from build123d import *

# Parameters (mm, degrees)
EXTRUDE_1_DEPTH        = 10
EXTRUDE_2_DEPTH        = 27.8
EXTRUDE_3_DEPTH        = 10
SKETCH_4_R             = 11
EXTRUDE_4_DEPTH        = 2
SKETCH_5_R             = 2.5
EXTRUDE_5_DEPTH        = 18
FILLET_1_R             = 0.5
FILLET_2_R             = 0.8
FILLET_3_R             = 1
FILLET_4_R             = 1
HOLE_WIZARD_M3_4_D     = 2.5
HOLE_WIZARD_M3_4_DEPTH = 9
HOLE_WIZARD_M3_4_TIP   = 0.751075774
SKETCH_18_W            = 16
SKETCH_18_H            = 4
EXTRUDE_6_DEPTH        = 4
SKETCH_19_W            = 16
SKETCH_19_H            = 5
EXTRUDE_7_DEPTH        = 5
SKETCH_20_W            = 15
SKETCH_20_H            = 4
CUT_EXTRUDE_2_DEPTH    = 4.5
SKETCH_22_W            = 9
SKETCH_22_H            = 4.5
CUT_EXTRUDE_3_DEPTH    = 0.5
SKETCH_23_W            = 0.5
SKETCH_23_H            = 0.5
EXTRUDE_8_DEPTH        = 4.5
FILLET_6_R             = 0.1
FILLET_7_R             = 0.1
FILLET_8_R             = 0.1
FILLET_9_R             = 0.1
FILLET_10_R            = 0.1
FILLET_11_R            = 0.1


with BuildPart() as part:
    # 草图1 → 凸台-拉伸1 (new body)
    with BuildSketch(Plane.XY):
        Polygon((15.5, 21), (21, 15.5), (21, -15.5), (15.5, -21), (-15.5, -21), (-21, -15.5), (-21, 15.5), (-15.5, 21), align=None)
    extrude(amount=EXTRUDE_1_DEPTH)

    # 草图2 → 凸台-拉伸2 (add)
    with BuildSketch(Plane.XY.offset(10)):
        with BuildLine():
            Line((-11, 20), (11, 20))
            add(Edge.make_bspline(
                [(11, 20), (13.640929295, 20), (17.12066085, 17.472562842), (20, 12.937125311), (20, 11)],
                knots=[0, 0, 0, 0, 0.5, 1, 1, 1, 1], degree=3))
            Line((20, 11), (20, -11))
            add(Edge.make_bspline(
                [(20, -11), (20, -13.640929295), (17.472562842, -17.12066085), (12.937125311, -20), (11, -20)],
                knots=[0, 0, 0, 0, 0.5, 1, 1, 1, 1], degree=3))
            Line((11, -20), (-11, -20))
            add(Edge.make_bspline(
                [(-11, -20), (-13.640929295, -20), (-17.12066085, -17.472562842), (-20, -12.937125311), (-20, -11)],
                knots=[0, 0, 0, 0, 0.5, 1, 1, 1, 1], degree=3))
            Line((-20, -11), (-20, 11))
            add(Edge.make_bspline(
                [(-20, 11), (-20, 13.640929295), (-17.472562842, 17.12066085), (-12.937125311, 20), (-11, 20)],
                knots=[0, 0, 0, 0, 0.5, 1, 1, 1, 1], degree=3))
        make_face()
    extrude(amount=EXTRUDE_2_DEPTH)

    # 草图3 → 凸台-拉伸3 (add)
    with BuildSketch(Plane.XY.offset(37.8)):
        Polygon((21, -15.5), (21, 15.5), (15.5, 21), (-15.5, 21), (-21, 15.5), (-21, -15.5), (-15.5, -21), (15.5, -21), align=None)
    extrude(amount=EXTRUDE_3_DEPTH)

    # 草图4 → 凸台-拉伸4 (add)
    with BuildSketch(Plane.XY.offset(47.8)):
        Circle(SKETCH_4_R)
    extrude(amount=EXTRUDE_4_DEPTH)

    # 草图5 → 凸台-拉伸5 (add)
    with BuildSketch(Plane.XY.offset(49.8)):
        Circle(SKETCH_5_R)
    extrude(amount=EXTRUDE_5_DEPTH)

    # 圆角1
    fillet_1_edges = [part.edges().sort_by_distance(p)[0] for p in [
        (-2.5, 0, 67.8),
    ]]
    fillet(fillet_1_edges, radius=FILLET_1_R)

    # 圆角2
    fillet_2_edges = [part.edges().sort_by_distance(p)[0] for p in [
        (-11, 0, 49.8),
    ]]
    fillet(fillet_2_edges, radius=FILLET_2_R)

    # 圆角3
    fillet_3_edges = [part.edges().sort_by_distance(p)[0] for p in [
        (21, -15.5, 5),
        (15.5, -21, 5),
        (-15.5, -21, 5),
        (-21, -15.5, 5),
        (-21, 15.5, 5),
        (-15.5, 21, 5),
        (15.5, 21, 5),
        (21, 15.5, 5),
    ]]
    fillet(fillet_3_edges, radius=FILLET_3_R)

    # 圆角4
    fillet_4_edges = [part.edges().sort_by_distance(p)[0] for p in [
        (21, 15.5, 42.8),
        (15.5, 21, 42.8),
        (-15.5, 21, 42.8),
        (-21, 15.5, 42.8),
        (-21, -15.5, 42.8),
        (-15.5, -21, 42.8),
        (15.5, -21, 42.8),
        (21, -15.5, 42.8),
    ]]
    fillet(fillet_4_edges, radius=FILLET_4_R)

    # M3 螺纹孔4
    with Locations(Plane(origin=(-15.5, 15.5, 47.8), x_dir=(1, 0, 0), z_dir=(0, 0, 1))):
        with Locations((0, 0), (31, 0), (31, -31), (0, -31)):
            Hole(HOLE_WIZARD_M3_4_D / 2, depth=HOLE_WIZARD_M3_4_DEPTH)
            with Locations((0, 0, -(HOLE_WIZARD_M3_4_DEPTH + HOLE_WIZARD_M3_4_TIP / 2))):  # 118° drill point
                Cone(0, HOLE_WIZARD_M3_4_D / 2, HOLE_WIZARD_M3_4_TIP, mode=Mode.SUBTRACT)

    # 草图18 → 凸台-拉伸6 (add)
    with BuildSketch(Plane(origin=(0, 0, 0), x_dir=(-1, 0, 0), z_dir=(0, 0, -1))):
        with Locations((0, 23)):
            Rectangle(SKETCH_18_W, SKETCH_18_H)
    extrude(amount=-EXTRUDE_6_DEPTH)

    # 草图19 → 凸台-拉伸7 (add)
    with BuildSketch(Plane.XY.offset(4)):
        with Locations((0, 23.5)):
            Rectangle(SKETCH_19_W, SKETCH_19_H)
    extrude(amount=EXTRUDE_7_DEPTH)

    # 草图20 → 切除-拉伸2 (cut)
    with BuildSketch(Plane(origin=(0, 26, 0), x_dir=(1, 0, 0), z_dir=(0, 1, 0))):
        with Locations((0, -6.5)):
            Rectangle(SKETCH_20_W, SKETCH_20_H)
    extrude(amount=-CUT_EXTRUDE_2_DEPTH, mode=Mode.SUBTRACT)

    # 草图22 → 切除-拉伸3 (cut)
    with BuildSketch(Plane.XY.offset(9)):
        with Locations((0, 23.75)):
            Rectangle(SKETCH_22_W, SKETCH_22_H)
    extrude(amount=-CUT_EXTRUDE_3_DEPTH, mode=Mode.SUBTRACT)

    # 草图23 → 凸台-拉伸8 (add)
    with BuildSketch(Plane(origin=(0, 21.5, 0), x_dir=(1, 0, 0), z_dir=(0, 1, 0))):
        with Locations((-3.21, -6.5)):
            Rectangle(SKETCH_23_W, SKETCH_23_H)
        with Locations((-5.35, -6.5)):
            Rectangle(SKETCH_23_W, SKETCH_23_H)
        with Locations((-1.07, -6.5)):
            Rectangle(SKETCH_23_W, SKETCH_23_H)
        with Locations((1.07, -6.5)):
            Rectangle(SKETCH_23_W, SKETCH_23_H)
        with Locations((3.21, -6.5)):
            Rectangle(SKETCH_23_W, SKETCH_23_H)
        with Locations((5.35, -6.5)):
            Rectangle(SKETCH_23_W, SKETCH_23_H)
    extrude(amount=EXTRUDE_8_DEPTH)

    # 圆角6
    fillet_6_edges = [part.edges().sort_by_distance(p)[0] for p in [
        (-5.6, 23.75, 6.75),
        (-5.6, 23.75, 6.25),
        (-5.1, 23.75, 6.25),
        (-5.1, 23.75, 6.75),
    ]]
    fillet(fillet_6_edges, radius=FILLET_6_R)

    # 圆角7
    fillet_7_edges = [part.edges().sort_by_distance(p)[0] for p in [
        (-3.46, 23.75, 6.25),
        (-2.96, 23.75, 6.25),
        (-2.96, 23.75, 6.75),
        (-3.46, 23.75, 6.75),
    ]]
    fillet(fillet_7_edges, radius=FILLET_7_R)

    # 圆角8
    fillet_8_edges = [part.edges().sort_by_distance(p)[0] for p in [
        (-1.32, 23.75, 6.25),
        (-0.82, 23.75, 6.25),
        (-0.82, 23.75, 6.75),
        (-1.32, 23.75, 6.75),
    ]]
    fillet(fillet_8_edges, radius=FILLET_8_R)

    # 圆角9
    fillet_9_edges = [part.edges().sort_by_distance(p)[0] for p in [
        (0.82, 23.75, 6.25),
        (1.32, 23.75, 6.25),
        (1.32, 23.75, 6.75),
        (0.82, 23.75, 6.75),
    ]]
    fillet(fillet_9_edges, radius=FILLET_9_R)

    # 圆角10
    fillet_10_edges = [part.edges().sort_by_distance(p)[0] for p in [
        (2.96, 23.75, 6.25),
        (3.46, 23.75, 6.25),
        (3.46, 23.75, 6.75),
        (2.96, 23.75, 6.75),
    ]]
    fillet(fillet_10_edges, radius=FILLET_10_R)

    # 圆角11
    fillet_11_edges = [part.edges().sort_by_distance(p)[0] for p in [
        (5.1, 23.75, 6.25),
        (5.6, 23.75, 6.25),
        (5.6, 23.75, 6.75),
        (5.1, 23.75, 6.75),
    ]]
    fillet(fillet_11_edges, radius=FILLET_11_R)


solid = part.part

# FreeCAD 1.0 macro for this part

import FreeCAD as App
import Part
import Sketcher

V = App.Vector


def edges_at(feature, points):
    """Names of the edges that pass closest to the given points."""
    edges = feature.Shape.Edges
    near = lambda p: min(range(len(edges)), key=lambda i: edges[i].distToShape(Part.Vertex(*p))[0])
    return sorted({f"Edge{near(p) + 1}" for p in points})

doc = App.newDocument("Part")
body = doc.addObject("PartDesign::Body", "Body")

# Sketch on XY plane
sketch1 = body.newObject("Sketcher::SketchObject", "Sketch")
sketch1.AttachmentSupport = (doc.getObject("XY_Plane"), [""])
sketch1.MapMode = "FlatFace"
sketch1.addGeometry([
    Part.LineSegment(V(21, 15.5, 0), V(15.5, 21, 0)),  # 0
    Part.LineSegment(V(15.5, 21, 0), V(-15.5, 21, 0)),  # 1
    Part.LineSegment(V(-15.5, 21, 0), V(-21, 15.5, 0)),  # 2
    Part.LineSegment(V(-21, 15.5, 0), V(-21, -15.5, 0)),  # 3
    Part.LineSegment(V(-21, -15.5, 0), V(-15.5, -21, 0)),  # 4
    Part.LineSegment(V(-15.5, -21, 0), V(15.5, -21, 0)),  # 5
    Part.LineSegment(V(15.5, -21, 0), V(21, -15.5, 0)),  # 6
    Part.LineSegment(V(21, -15.5, 0), V(21, 15.5, 0)),  # 7
], False)
sketch1.addConstraint([
    Sketcher.Constraint("Coincident", 0, 2, 1, 1),
    Sketcher.Constraint("Coincident", 1, 2, 2, 1),
    Sketcher.Constraint("Coincident", 2, 2, 3, 1),
    Sketcher.Constraint("Coincident", 3, 2, 4, 1),
    Sketcher.Constraint("Coincident", 4, 2, 5, 1),
    Sketcher.Constraint("Coincident", 5, 2, 6, 1),
    Sketcher.Constraint("Coincident", 6, 2, 7, 1),
    Sketcher.Constraint("Coincident", 7, 2, 0, 1),
    Sketcher.Constraint("Horizontal", 1),
    Sketcher.Constraint("Vertical", 3),
    Sketcher.Constraint("Horizontal", 5),
    Sketcher.Constraint("Vertical", 7),
    Sketcher.Constraint("Symmetric", 0, 2, 4, 2, -1, 1),
    Sketcher.Constraint("Symmetric", 2, 2, 6, 2, -1, 1),
    Sketcher.Constraint("Perpendicular", 0, 2),
    Sketcher.Constraint("Perpendicular", 2, 4),
    Sketcher.Constraint("Perpendicular", 4, 6),
    Sketcher.Constraint("Horizontal", 3, 2, 6, 2),
    Sketcher.Constraint("Vertical", 1, 2, 4, 2),
    Sketcher.Constraint("Equal", 5, 3),
    Sketcher.Constraint("DistanceX", 1, 2, 1, 1, 31.0),
    Sketcher.Constraint("DistanceY", -1, 1, 0, 2, 21.0),
])
pad1 = body.newObject("PartDesign::Pad", "Pad")
pad1.Profile = sketch1
pad1.Length = 10

# Sketch on XY plane
sketch2 = body.newObject("Sketcher::SketchObject", "Sketch001")
sketch2.AttachmentSupport = (doc.getObject("XY_Plane"), [""])
sketch2.MapMode = "FlatFace"
sketch2.AttachmentOffset = App.Placement(V(0, 0, 10), App.Rotation())
sketch2.addGeometry([
    Part.LineSegment(V(11, 20, 0), V(-11, 20, 0)),  # 0
    Part.BSplineCurve([V(-20, 11, 0), V(-20, 13.640929, 0), V(-17.472563, 17.120661, 0), V(-12.937125, 20, 0), V(-11, 20, 0)], [4, 1, 4], [0, 0.5, 1], False, 3, [1, 1, 1, 1, 1], False),  # 1
    Part.LineSegment(V(-20, 11, 0), V(-20, -11, 0)),  # 2
    Part.BSplineCurve([V(-11, -20, 0), V(-13.640929, -20, 0), V(-17.120661, -17.472563, 0), V(-20, -12.937125, 0), V(-20, -11, 0)], [4, 1, 4], [0, 0.5, 1], False, 3, [1, 1, 1, 1, 1], False),  # 3
    Part.LineSegment(V(-11, -20, 0), V(11, -20, 0)),  # 4
    Part.BSplineCurve([V(20, -11, 0), V(20, -13.640929, 0), V(17.472563, -17.120661, 0), V(12.937125, -20, 0), V(11, -20, 0)], [4, 1, 4], [0, 0.5, 1], False, 3, [1, 1, 1, 1, 1], False),  # 5
    Part.LineSegment(V(20, -11, 0), V(20, 11, 0)),  # 6
    Part.BSplineCurve([V(11, 20, 0), V(13.640929, 20, 0), V(17.120661, 17.472563, 0), V(20, 12.937125, 0), V(20, 11, 0)], [4, 1, 4], [0, 0.5, 1], False, 3, [1, 1, 1, 1, 1], False),  # 7
], False)
sketch2.addConstraint([
    Sketcher.Constraint("Block", 1),
    Sketcher.Constraint("Block", 3),
    Sketcher.Constraint("Block", 5),
    Sketcher.Constraint("Block", 7),
    Sketcher.Constraint("Coincident", 0, 2, 1, 2),
    Sketcher.Constraint("Coincident", 1, 1, 2, 1),
    Sketcher.Constraint("Coincident", 2, 2, 3, 2),
    Sketcher.Constraint("Coincident", 3, 1, 4, 1),
    Sketcher.Constraint("Coincident", 4, 2, 5, 2),
    Sketcher.Constraint("Coincident", 5, 1, 6, 1),
    Sketcher.Constraint("Coincident", 6, 2, 7, 2),
    Sketcher.Constraint("Coincident", 7, 1, 0, 1),
])
pad2 = body.newObject("PartDesign::Pad", "Pad001")
pad2.Profile = sketch2
pad2.Length = 27.8

# Sketch on XY plane
sketch3 = body.newObject("Sketcher::SketchObject", "Sketch002")
sketch3.AttachmentSupport = (doc.getObject("XY_Plane"), [""])
sketch3.MapMode = "FlatFace"
sketch3.AttachmentOffset = App.Placement(V(0, 0, 37.8), App.Rotation())
sketch3.addGeometry([
    Part.LineSegment(V(21, -15.5, 0), V(21, 15.5, 0)),  # 0
    Part.LineSegment(V(21, 15.5, 0), V(15.5, 21, 0)),  # 1
    Part.LineSegment(V(15.5, 21, 0), V(-15.5, 21, 0)),  # 2
    Part.LineSegment(V(-15.5, 21, 0), V(-21, 15.5, 0)),  # 3
    Part.LineSegment(V(-21, 15.5, 0), V(-21, -15.5, 0)),  # 4
    Part.LineSegment(V(-21, -15.5, 0), V(-15.5, -21, 0)),  # 5
    Part.LineSegment(V(-15.5, -21, 0), V(15.5, -21, 0)),  # 6
    Part.LineSegment(V(15.5, -21, 0), V(21, -15.5, 0)),  # 7
], False)
sketch3.addConstraint([
    Sketcher.Constraint("Coincident", 0, 2, 1, 1),
    Sketcher.Constraint("Coincident", 1, 2, 2, 1),
    Sketcher.Constraint("Coincident", 2, 2, 3, 1),
    Sketcher.Constraint("Coincident", 3, 2, 4, 1),
    Sketcher.Constraint("Coincident", 4, 2, 5, 1),
    Sketcher.Constraint("Coincident", 5, 2, 6, 1),
    Sketcher.Constraint("Coincident", 6, 2, 7, 1),
    Sketcher.Constraint("Coincident", 7, 2, 0, 1),
    Sketcher.Constraint("Vertical", 0),
    Sketcher.Constraint("Horizontal", 2),
    Sketcher.Constraint("Vertical", 4),
    Sketcher.Constraint("Horizontal", 6),
    Sketcher.Constraint("Symmetric", 0, 2, 4, 2, -1, 1),
    Sketcher.Constraint("Symmetric", 1, 2, 5, 2, -1, 1),
    Sketcher.Constraint("Perpendicular", 1, 3),
    Sketcher.Constraint("Perpendicular", 5, 7),
    Sketcher.Constraint("Horizontal", 0, 2, 3, 2),
    Sketcher.Constraint("Horizontal", 4, 2, 7, 2),
    Sketcher.Constraint("Vertical", 2, 2, 5, 2),
    Sketcher.Constraint("Equal", 6, 0),
    Sketcher.Constraint("DistanceX", 2, 2, 2, 1, 31.0),
    Sketcher.Constraint("DistanceX", -1, 1, 0, 2, 21.0),
])
pad3 = body.newObject("PartDesign::Pad", "Pad002")
pad3.Profile = sketch3
pad3.Length = 10

# Sketch on XY plane
sketch4 = body.newObject("Sketcher::SketchObject", "Sketch003")
sketch4.AttachmentSupport = (doc.getObject("XY_Plane"), [""])
sketch4.MapMode = "FlatFace"
sketch4.AttachmentOffset = App.Placement(V(0, 0, 47.8), App.Rotation())
sketch4.addGeometry(Part.Circle(V(0, 0, 0), V(0, 0, 1), 11), False)
sketch4.addConstraint([
    Sketcher.Constraint("Coincident", 0, 3, -1, 1),
    Sketcher.Constraint("Diameter", 0, 22.0),
])
pad4 = body.newObject("PartDesign::Pad", "Pad003")
pad4.Profile = sketch4
pad4.Length = 2

# Sketch on XY plane
sketch5 = body.newObject("Sketcher::SketchObject", "Sketch004")
sketch5.AttachmentSupport = (doc.getObject("XY_Plane"), [""])
sketch5.MapMode = "FlatFace"
sketch5.AttachmentOffset = App.Placement(V(0, 0, 49.8), App.Rotation())
sketch5.addGeometry(Part.Circle(V(0, 0, 0), V(0, 0, 1), 2.5), False)
sketch5.addConstraint([
    Sketcher.Constraint("Coincident", 0, 3, -1, 1),
    Sketcher.Constraint("Diameter", 0, 5.0),
])
pad5 = body.newObject("PartDesign::Pad", "Pad004")
pad5.Profile = sketch5
pad5.Length = 18
doc.recompute()

fillet = body.newObject("PartDesign::Fillet", "Fillet")
fillet.Base = (pad5, edges_at(pad5, [(-2.5, 0, 67.8)]))
fillet.Radius = 0.5
doc.recompute()

fillet2 = body.newObject("PartDesign::Fillet", "Fillet001")
fillet2.Base = (fillet, edges_at(fillet, [(-11, 0, 49.8)]))
fillet2.Radius = 0.8
doc.recompute()

fillet3 = body.newObject("PartDesign::Fillet", "Fillet002")
fillet3.Base = (fillet2, edges_at(fillet2, [
    (21, -15.5, 5),
    (15.5, -21, 5),
    (-15.5, -21, 5),
    (-21, -15.5, 5),
    (-21, 15.5, 5),
    (-15.5, 21, 5),
    (15.5, 21, 5),
    (21, 15.5, 5),
]))
fillet3.Radius = 1
doc.recompute()

fillet4 = body.newObject("PartDesign::Fillet", "Fillet003")
fillet4.Base = (fillet3, edges_at(fillet3, [
    (21, 15.5, 42.8),
    (15.5, 21, 42.8),
    (-15.5, 21, 42.8),
    (-21, 15.5, 42.8),
    (-21, -15.5, 42.8),
    (-15.5, -21, 42.8),
    (15.5, -21, 42.8),
    (21, -15.5, 42.8),
]))
fillet4.Radius = 1

# Sketch on XY plane
sketch6 = body.newObject("Sketcher::SketchObject", "Sketch005")
sketch6.AttachmentSupport = (doc.getObject("XY_Plane"), [""])
sketch6.MapMode = "FlatFace"
sketch6.AttachmentOffset = App.Placement(V(0, 0, 47.8), App.Rotation())
sketch6.addGeometry([
    Part.Circle(V(-15.5, 15.5, 0), V(0, 0, 1), 1.25),
    Part.Circle(V(15.5, 15.5, 0), V(0, 0, 1), 1.25),
    Part.Circle(V(15.5, -15.5, 0), V(0, 0, 1), 1.25),
    Part.Circle(V(-15.5, -15.5, 0), V(0, 0, 1), 1.25),
], False)
sketch6.addConstraint([
    Sketcher.Constraint("Equal", 0, 1),
    Sketcher.Constraint("Equal", 1, 2),
    Sketcher.Constraint("Equal", 2, 3),
    Sketcher.Constraint("Symmetric", 0, 3, 2, 3, -1, 1),
    Sketcher.Constraint("Symmetric", 1, 3, 3, 3, -1, 1),
    Sketcher.Constraint("Symmetric", 0, 3, 1, 3, -2),
    Sketcher.Constraint("Diameter", 0, 2.5),
    Sketcher.Constraint("DistanceX", 0, 3, 1, 3, 31.0),
    Sketcher.Constraint("DistanceY", 2, 3, 1, 3, 31.0),
])
doc.recompute()
hole = body.newObject("PartDesign::Hole", "Hole")
hole.Profile = sketch6
hole.ThreadType = "None"
hole.Diameter = 2.5
hole.DepthType = "Dimension"
hole.Depth = 9
hole.DrillPoint = "Angled"
hole.DrillPointAngle = 118

# Sketch on XY plane
sketch7 = body.newObject("Sketcher::SketchObject", "Sketch006")
sketch7.AttachmentSupport = (doc.getObject("XY_Plane"), [""])
sketch7.MapMode = "FlatFace"
sketch7.addGeometry([
    Part.LineSegment(V(8, 25, 0), V(8, 21, 0)),
    Part.LineSegment(V(8, 21, 0), V(-8, 21, 0)),
    Part.LineSegment(V(-8, 21, 0), V(-8, 25, 0)),
    Part.LineSegment(V(-8, 25, 0), V(8, 25, 0)),
], False)
sketch7.addConstraint([
    Sketcher.Constraint("Coincident", 0, 2, 1, 1),
    Sketcher.Constraint("Coincident", 1, 2, 2, 1),
    Sketcher.Constraint("Coincident", 2, 2, 3, 1),
    Sketcher.Constraint("Coincident", 3, 2, 0, 1),
    Sketcher.Constraint("Vertical", 0),
    Sketcher.Constraint("Horizontal", 1),
    Sketcher.Constraint("Vertical", 2),
    Sketcher.Constraint("Horizontal", 3),
    Sketcher.Constraint("DistanceX", 1, 2, 1, 1, 16.0),
    Sketcher.Constraint("DistanceY", 0, 2, 0, 1, 4.0),
    Sketcher.Constraint("DistanceX", -1, 1, 0, 2, 8.0),
    Sketcher.Constraint("DistanceY", -1, 1, 0, 2, 21.0),
])
pad6 = body.newObject("PartDesign::Pad", "Pad005")
pad6.Profile = sketch7
pad6.Length = 4

# Sketch on XY plane
sketch8 = body.newObject("Sketcher::SketchObject", "Sketch007")
sketch8.AttachmentSupport = (doc.getObject("XY_Plane"), [""])
sketch8.MapMode = "FlatFace"
sketch8.AttachmentOffset = App.Placement(V(0, 0, 4), App.Rotation())
sketch8.addGeometry([
    Part.LineSegment(V(-8, 26, 0), V(-8, 21, 0)),
    Part.LineSegment(V(-8, 21, 0), V(8, 21, 0)),
    Part.LineSegment(V(8, 21, 0), V(8, 26, 0)),
    Part.LineSegment(V(8, 26, 0), V(-8, 26, 0)),
], False)
sketch8.addConstraint([
    Sketcher.Constraint("Coincident", 0, 2, 1, 1),
    Sketcher.Constraint("Coincident", 1, 2, 2, 1),
    Sketcher.Constraint("Coincident", 2, 2, 3, 1),
    Sketcher.Constraint("Coincident", 3, 2, 0, 1),
    Sketcher.Constraint("Vertical", 0),
    Sketcher.Constraint("Horizontal", 1),
    Sketcher.Constraint("Vertical", 2),
    Sketcher.Constraint("Horizontal", 3),
    Sketcher.Constraint("DistanceX", 1, 1, 1, 2, 16.0),
    Sketcher.Constraint("DistanceY", 0, 2, 0, 1, 5.0),
    Sketcher.Constraint("DistanceX", 0, 2, -1, 1, 8.0),
    Sketcher.Constraint("DistanceY", -1, 1, 0, 2, 21.0),
])
pad7 = body.newObject("PartDesign::Pad", "Pad006")
pad7.Profile = sketch8
pad7.Length = 5

# Sketch on XZ plane
sketch9 = body.newObject("Sketcher::SketchObject", "Sketch008")
sketch9.AttachmentSupport = (doc.getObject("XZ_Plane"), [""])
sketch9.MapMode = "FlatFace"
sketch9.AttachmentOffset = App.Placement(V(0, 0, -26), App.Rotation())
sketch9.addGeometry([
    Part.LineSegment(V(-7.5, 4.5, 0), V(-7.5, 8.5, 0)),
    Part.LineSegment(V(-7.5, 8.5, 0), V(7.5, 8.5, 0)),
    Part.LineSegment(V(7.5, 8.5, 0), V(7.5, 4.5, 0)),
    Part.LineSegment(V(7.5, 4.5, 0), V(-7.5, 4.5, 0)),
], False)
sketch9.addConstraint([
    Sketcher.Constraint("Coincident", 0, 2, 1, 1),
    Sketcher.Constraint("Coincident", 1, 2, 2, 1),
    Sketcher.Constraint("Coincident", 2, 2, 3, 1),
    Sketcher.Constraint("Coincident", 3, 2, 0, 1),
    Sketcher.Constraint("Vertical", 0),
    Sketcher.Constraint("Horizontal", 1),
    Sketcher.Constraint("Vertical", 2),
    Sketcher.Constraint("Horizontal", 3),
    Sketcher.Constraint("DistanceX", 1, 1, 1, 2, 15.0),
    Sketcher.Constraint("DistanceY", 0, 1, 0, 2, 4.0),
    Sketcher.Constraint("DistanceX", 0, 2, -1, 1, 7.5),
    Sketcher.Constraint("DistanceY", -1, 1, 0, 2, 8.5),
])
pocket1 = body.newObject("PartDesign::Pocket", "Pocket")
pocket1.Profile = sketch9
pocket1.Length = 4.5
pocket1.Reversed = True

# Sketch on XY plane
sketch10 = body.newObject("Sketcher::SketchObject", "Sketch009")
sketch10.AttachmentSupport = (doc.getObject("XY_Plane"), [""])
sketch10.MapMode = "FlatFace"
sketch10.AttachmentOffset = App.Placement(V(0, 0, 9), App.Rotation())
sketch10.addGeometry([
    Part.LineSegment(V(-4.5, 26, 0), V(-4.5, 21.5, 0)),
    Part.LineSegment(V(-4.5, 21.5, 0), V(4.5, 21.5, 0)),
    Part.LineSegment(V(4.5, 21.5, 0), V(4.5, 26, 0)),
    Part.LineSegment(V(4.5, 26, 0), V(-4.5, 26, 0)),
], False)
sketch10.addConstraint([
    Sketcher.Constraint("Coincident", 0, 2, 1, 1),
    Sketcher.Constraint("Coincident", 1, 2, 2, 1),
    Sketcher.Constraint("Coincident", 2, 2, 3, 1),
    Sketcher.Constraint("Coincident", 3, 2, 0, 1),
    Sketcher.Constraint("Vertical", 0),
    Sketcher.Constraint("Horizontal", 1),
    Sketcher.Constraint("Vertical", 2),
    Sketcher.Constraint("Horizontal", 3),
    Sketcher.Constraint("DistanceX", 1, 1, 1, 2, 9.0),
    Sketcher.Constraint("DistanceY", 0, 2, 0, 1, 4.5),
    Sketcher.Constraint("DistanceY", -1, 1, 2, 2, 26.0),
    Sketcher.Constraint("DistanceX", 0, 2, -1, 1, 4.5),
])
pocket2 = body.newObject("PartDesign::Pocket", "Pocket001")
pocket2.Profile = sketch10
pocket2.Length = 0.5

# Sketch on XZ plane
sketch11 = body.newObject("Sketcher::SketchObject", "Sketch010")
sketch11.AttachmentSupport = (doc.getObject("XZ_Plane"), [""])
sketch11.MapMode = "FlatFace"
sketch11.AttachmentOffset = App.Placement(V(0, 0, -21.5), App.Rotation())
sketch11.addGeometry([
    Part.LineSegment(V(-3.46, 6.25, 0), V(-3.46, 6.75, 0)),  # 0
    Part.LineSegment(V(-3.46, 6.75, 0), V(-2.96, 6.75, 0)),  # 1
    Part.LineSegment(V(-2.96, 6.75, 0), V(-2.96, 6.25, 0)),  # 2
    Part.LineSegment(V(-2.96, 6.25, 0), V(-3.46, 6.25, 0)),  # 3
    Part.LineSegment(V(-5.6, 6.25, 0), V(-5.6, 6.75, 0)),  # 4
    Part.LineSegment(V(-5.6, 6.75, 0), V(-5.1, 6.75, 0)),  # 5
    Part.LineSegment(V(-5.1, 6.75, 0), V(-5.1, 6.25, 0)),  # 6
    Part.LineSegment(V(-5.1, 6.25, 0), V(-5.6, 6.25, 0)),  # 7
    Part.LineSegment(V(-1.32, 6.25, 0), V(-1.32, 6.75, 0)),  # 8
    Part.LineSegment(V(-1.32, 6.75, 0), V(-0.82, 6.75, 0)),  # 9
    Part.LineSegment(V(-0.82, 6.75, 0), V(-0.82, 6.25, 0)),  # 10
    Part.LineSegment(V(-0.82, 6.25, 0), V(-1.32, 6.25, 0)),  # 11
    Part.LineSegment(V(0.82, 6.25, 0), V(0.82, 6.75, 0)),  # 12
    Part.LineSegment(V(0.82, 6.75, 0), V(1.32, 6.75, 0)),  # 13
    Part.LineSegment(V(1.32, 6.75, 0), V(1.32, 6.25, 0)),  # 14
    Part.LineSegment(V(1.32, 6.25, 0), V(0.82, 6.25, 0)),  # 15
    Part.LineSegment(V(2.96, 6.25, 0), V(2.96, 6.75, 0)),  # 16
    Part.LineSegment(V(2.96, 6.75, 0), V(3.46, 6.75, 0)),  # 17
    Part.LineSegment(V(3.46, 6.75, 0), V(3.46, 6.25, 0)),  # 18
    Part.LineSegment(V(3.46, 6.25, 0), V(2.96, 6.25, 0)),  # 19
    Part.LineSegment(V(5.1, 6.25, 0), V(5.1, 6.75, 0)),  # 20
    Part.LineSegment(V(5.1, 6.75, 0), V(5.6, 6.75, 0)),  # 21
    Part.LineSegment(V(5.6, 6.75, 0), V(5.6, 6.25, 0)),  # 22
    Part.LineSegment(V(5.6, 6.25, 0), V(5.1, 6.25, 0)),  # 23
], False)
sketch11.addConstraint([
    Sketcher.Constraint("Coincident", 0, 2, 1, 1),
    Sketcher.Constraint("Coincident", 1, 2, 2, 1),
    Sketcher.Constraint("Coincident", 2, 2, 3, 1),
    Sketcher.Constraint("Coincident", 3, 2, 0, 1),
    Sketcher.Constraint("Coincident", 4, 2, 5, 1),
    Sketcher.Constraint("Coincident", 5, 2, 6, 1),
    Sketcher.Constraint("Coincident", 6, 2, 7, 1),
    Sketcher.Constraint("Coincident", 7, 2, 4, 1),
    Sketcher.Constraint("Coincident", 8, 2, 9, 1),
    Sketcher.Constraint("Coincident", 9, 2, 10, 1),
    Sketcher.Constraint("Coincident", 10, 2, 11, 1),
    Sketcher.Constraint("Coincident", 11, 2, 8, 1),
    Sketcher.Constraint("Coincident", 12, 2, 13, 1),
    Sketcher.Constraint("Coincident", 13, 2, 14, 1),
    Sketcher.Constraint("Coincident", 14, 2, 15, 1),
    Sketcher.Constraint("Coincident", 15, 2, 12, 1),
    Sketcher.Constraint("Coincident", 16, 2, 17, 1),
    Sketcher.Constraint("Coincident", 17, 2, 18, 1),
    Sketcher.Constraint("Coincident", 18, 2, 19, 1),
    Sketcher.Constraint("Coincident", 19, 2, 16, 1),
    Sketcher.Constraint("Coincident", 20, 2, 21, 1),
    Sketcher.Constraint("Coincident", 21, 2, 22, 1),
    Sketcher.Constraint("Coincident", 22, 2, 23, 1),
    Sketcher.Constraint("Coincident", 23, 2, 20, 1),
    Sketcher.Constraint("Vertical", 0),
    Sketcher.Constraint("Horizontal", 1),
    Sketcher.Constraint("Vertical", 2),
    Sketcher.Constraint("Horizontal", 3),
    Sketcher.Constraint("Vertical", 4),
    Sketcher.Constraint("Horizontal", 5),
    Sketcher.Constraint("Vertical", 6),
    Sketcher.Constraint("Horizontal", 7),
    Sketcher.Constraint("Vertical", 8),
    Sketcher.Constraint("Horizontal", 9),
    Sketcher.Constraint("Vertical", 10),
    Sketcher.Constraint("Horizontal", 11),
    Sketcher.Constraint("Vertical", 12),
    Sketcher.Constraint("Horizontal", 13),
    Sketcher.Constraint("Vertical", 14),
    Sketcher.Constraint("Horizontal", 15),
    Sketcher.Constraint("Vertical", 16),
    Sketcher.Constraint("Horizontal", 17),
    Sketcher.Constraint("Vertical", 18),
    Sketcher.Constraint("Horizontal", 19),
    Sketcher.Constraint("Vertical", 20),
    Sketcher.Constraint("Horizontal", 21),
    Sketcher.Constraint("Vertical", 22),
    Sketcher.Constraint("Horizontal", 23),
    Sketcher.Constraint("Symmetric", 9, 2, 12, 2, -2),
    Sketcher.Constraint("Symmetric", 11, 2, 14, 2, -2),
    Sketcher.Constraint("Symmetric", 1, 2, 16, 2, -2),
    Sketcher.Constraint("Symmetric", 3, 2, 18, 2, -2),
    Sketcher.Constraint("Symmetric", 5, 2, 20, 2, -2),
    Sketcher.Constraint("Symmetric", 7, 2, 22, 2, -2),
    Sketcher.Constraint("Horizontal", 1, 2, 4, 2),
    Sketcher.Constraint("Horizontal", 3, 2, 6, 2),
    Sketcher.Constraint("Horizontal", 5, 2, 8, 2),
    Sketcher.Constraint("Horizontal", 7, 2, 10, 2),
    Sketcher.Constraint("Equal", 3, 5),
    Sketcher.Constraint("Equal", 7, 9),
    Sketcher.Constraint("Equal", 23, 0),
    Sketcher.Constraint("DistanceX", 1, 1, 1, 2, 0.5),
    Sketcher.Constraint("DistanceX", 4, 2, -1, 1, 5.6),
    Sketcher.Constraint("DistanceX", 0, 2, -1, 1, 3.46),
    Sketcher.Constraint("DistanceY", -1, 1, 0, 2, 6.75),
    Sketcher.Constraint("DistanceX", 8, 2, -1, 1, 1.32),
])
pad8 = body.newObject("PartDesign::Pad", "Pad007")
pad8.Profile = sketch11
pad8.Length = 4.5
pad8.Reversed = True
doc.recompute()

fillet5 = body.newObject("PartDesign::Fillet", "Fillet004")
fillet5.Base = (pad8, edges_at(pad8, [
    (-5.6, 23.75, 6.75),
    (-5.6, 23.75, 6.25),
    (-5.1, 23.75, 6.25),
    (-5.1, 23.75, 6.75),
]))
fillet5.Radius = 0.1
doc.recompute()

fillet6 = body.newObject("PartDesign::Fillet", "Fillet005")
fillet6.Base = (fillet5, edges_at(fillet5, [
    (-3.46, 23.75, 6.25),
    (-2.96, 23.75, 6.25),
    (-2.96, 23.75, 6.75),
    (-3.46, 23.75, 6.75),
]))
fillet6.Radius = 0.1
doc.recompute()

fillet7 = body.newObject("PartDesign::Fillet", "Fillet006")
fillet7.Base = (fillet6, edges_at(fillet6, [
    (-1.32, 23.75, 6.25),
    (-0.82, 23.75, 6.25),
    (-0.82, 23.75, 6.75),
    (-1.32, 23.75, 6.75),
]))
fillet7.Radius = 0.1
doc.recompute()

fillet8 = body.newObject("PartDesign::Fillet", "Fillet007")
fillet8.Base = (fillet7, edges_at(fillet7, [
    (0.82, 23.75, 6.25),
    (1.32, 23.75, 6.25),
    (1.32, 23.75, 6.75),
    (0.82, 23.75, 6.75),
]))
fillet8.Radius = 0.1
doc.recompute()

fillet9 = body.newObject("PartDesign::Fillet", "Fillet008")
fillet9.Base = (fillet8, edges_at(fillet8, [
    (2.96, 23.75, 6.25),
    (3.46, 23.75, 6.25),
    (3.46, 23.75, 6.75),
    (2.96, 23.75, 6.75),
]))
fillet9.Radius = 0.1
doc.recompute()

fillet10 = body.newObject("PartDesign::Fillet", "Fillet009")
fillet10.Base = (fillet9, edges_at(fillet9, [
    (5.1, 23.75, 6.25),
    (5.6, 23.75, 6.25),
    (5.6, 23.75, 6.75),
    (5.1, 23.75, 6.75),
]))
fillet10.Radius = 0.1

doc.recompute()
